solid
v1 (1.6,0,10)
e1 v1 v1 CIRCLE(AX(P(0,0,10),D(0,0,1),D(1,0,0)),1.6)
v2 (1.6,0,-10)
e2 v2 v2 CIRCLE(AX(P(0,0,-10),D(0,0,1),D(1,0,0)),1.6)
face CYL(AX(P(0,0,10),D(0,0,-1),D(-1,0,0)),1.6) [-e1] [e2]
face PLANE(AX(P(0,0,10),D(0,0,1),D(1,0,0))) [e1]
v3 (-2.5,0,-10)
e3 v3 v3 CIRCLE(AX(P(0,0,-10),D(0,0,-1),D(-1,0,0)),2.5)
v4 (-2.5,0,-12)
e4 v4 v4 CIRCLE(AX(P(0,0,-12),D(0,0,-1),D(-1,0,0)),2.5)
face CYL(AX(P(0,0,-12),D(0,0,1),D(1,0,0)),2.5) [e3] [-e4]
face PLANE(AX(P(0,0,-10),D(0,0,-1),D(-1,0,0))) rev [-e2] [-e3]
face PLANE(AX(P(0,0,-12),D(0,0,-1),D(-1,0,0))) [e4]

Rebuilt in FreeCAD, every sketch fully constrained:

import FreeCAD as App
import Part
import Sketcher
from FreeCAD import Vector
Q = App.Units.Quantity

doc = App.newDocument("Part")
body = doc.addObject("PartDesign::Body", "Body")

# Sketch on XY plane
sketch1 = body.newObject("Sketcher::SketchObject", "Sketch")
sketch1.AttachmentSupport = (doc.getObject("XY_Plane"), [""])
sketch1.MapMode = "FlatFace"
sketch1.addGeometry(Part.Circle(Vector(0, 0, 0), Vector(0, 0, 1), 1.6), False)
sketch1.addConstraint(Sketcher.Constraint("Coincident", 0, 3, -1, 1))
sketch1.addConstraint(Sketcher.Constraint("Diameter", 0, Q("3.2 mm")))
pad1 = body.newObject("PartDesign::Pad", "Pad")
pad1.Profile = sketch1
pad1.Length = 20
pad1.Midplane = True

# Sketch on XY plane
sketch2 = body.newObject("Sketcher::SketchObject", "Sketch001")
sketch2.AttachmentSupport = (doc.getObject("XY_Plane"), [""])
sketch2.MapMode = "FlatFace"
sketch2.AttachmentOffset = App.Placement(Vector(0, 0, -10), App.Rotation())
sketch2.addGeometry(Part.Circle(Vector(0, 0, 0), Vector(0, 0, 1), 2.5), False)
sketch2.addConstraint(Sketcher.Constraint("Coincident", 0, 3, -1, 1))
sketch2.addConstraint(Sketcher.Constraint("Diameter", 0, Q("5 mm")))
pad2 = body.newObject("PartDesign::Pad", "Pad001")
pad2.Profile = sketch2
pad2.Length = 2
pad2.Reversed = True

doc.recompute()
